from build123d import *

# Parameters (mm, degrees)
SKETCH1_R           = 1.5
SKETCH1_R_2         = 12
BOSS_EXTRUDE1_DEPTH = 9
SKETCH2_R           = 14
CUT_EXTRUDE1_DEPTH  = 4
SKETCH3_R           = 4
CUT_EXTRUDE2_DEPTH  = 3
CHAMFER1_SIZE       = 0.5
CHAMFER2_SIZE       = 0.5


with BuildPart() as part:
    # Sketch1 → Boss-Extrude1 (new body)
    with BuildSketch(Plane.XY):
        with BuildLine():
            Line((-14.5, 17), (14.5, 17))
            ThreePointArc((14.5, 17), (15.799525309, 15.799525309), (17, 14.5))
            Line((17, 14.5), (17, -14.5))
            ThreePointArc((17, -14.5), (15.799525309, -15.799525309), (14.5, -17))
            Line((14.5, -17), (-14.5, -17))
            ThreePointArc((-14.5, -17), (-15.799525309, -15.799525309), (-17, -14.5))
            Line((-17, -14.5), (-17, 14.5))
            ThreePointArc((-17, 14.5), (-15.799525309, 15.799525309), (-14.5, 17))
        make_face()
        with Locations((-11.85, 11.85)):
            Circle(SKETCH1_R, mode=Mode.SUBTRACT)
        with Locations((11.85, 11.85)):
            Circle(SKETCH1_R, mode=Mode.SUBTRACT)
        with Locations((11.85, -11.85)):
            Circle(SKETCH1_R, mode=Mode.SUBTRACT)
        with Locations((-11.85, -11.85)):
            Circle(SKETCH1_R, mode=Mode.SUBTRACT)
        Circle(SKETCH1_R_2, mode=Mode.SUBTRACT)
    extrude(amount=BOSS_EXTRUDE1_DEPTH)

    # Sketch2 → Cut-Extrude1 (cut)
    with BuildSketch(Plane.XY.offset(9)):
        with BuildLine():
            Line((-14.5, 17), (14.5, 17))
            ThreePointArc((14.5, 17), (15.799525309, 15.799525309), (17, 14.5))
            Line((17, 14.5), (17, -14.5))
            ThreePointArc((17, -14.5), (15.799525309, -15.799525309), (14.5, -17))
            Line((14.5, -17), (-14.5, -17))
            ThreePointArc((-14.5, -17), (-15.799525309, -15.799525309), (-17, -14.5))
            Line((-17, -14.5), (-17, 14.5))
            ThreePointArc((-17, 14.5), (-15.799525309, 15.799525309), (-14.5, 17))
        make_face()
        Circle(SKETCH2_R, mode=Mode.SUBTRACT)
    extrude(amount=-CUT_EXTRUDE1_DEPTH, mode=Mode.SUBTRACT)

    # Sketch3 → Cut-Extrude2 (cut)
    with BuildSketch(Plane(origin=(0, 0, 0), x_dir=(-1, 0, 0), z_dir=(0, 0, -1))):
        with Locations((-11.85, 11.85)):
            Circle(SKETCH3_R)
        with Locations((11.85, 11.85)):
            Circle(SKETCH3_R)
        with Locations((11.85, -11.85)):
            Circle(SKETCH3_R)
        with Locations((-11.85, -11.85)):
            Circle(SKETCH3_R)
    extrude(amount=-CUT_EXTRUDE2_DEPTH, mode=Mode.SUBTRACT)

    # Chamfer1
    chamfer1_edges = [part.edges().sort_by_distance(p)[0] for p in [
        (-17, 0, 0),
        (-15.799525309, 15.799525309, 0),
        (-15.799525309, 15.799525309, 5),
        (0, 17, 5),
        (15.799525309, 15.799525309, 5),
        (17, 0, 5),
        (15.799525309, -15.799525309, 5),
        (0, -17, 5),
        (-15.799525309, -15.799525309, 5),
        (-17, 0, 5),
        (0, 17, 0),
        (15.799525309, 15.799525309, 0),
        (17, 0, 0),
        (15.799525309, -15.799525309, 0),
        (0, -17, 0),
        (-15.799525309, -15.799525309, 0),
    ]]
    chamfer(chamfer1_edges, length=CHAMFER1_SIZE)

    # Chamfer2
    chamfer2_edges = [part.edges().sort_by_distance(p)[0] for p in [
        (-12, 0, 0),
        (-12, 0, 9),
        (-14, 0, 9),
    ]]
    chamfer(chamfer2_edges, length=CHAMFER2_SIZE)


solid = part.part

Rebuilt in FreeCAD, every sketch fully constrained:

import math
import FreeCAD as App
import Part
import Sketcher


def edges_at(feature, points):
    """Names of the edges that pass closest to the given points."""
    edges = feature.Shape.Edges
    near = lambda p: min(range(len(edges)), key=lambda i: edges[i].distToShape(Part.Vertex(*p))[0])
    return sorted({f"Edge{near(p) + 1}" for p in points})

doc = App.newDocument("Part")
body = doc.addObject("PartDesign::Body", "Body")

sketch1 = doc.addObject("Sketcher::SketchObject", "Sketch")
body.addObject(sketch1)
sketch1.AttachmentSupport = (doc.XY_Plane, [""])
sketch1.MapMode = "FlatFace"
sketch1.addGeometry([
    Part.LineSegment(App.Vector(14.5, 17, 0), App.Vector(-14.5, 17, 0)),
    Part.ArcOfCircle(Part.Circle(App.Vector(0, 0, 0), App.Vector(0, 0, 1), 22.343903), math.radians(130.462228), math.radians(139.537772)),
    Part.LineSegment(App.Vector(-17, 14.5, 0), App.Vector(-17, -14.5, 0)),
    Part.ArcOfCircle(Part.Circle(App.Vector(0, 0, 0), App.Vector(0, 0, 1), 22.343903), math.radians(-139.537772), math.radians(-130.462228)),
    Part.LineSegment(App.Vector(-14.5, -17, 0), App.Vector(14.5, -17, 0)),
    Part.ArcOfCircle(Part.Circle(App.Vector(0, 0, 0), App.Vector(0, 0, 1), 22.343903), math.radians(-49.537772), math.radians(-40.462228)),
    Part.LineSegment(App.Vector(17, -14.5, 0), App.Vector(17, 14.5, 0)),
    Part.ArcOfCircle(Part.Circle(App.Vector(0, 0, 0), App.Vector(0, 0, 1), 22.343903), math.radians(40.462228), math.radians(49.537772)),
    Part.Circle(App.Vector(11.85, -11.85, 0), App.Vector(0, 0, 1), 1.5),
    Part.Circle(App.Vector(-11.85, -11.85, 0), App.Vector(0, 0, 1), 1.5),
    Part.Circle(App.Vector(11.85, 11.85, 0), App.Vector(0, 0, 1), 1.5),
    Part.Circle(App.Vector(0, 0, 0), App.Vector(0, 0, 1), 12),
    Part.Circle(App.Vector(-11.85, 11.85, 0), App.Vector(0, 0, 1), 1.5),
], False)
sketch1.addConstraint([
    Sketcher.Constraint("Coincident", 0, 2, 1, 1),
    Sketcher.Constraint("Coincident", 1, 2, 2, 1),
    Sketcher.Constraint("Coincident", 2, 2, 3, 1),
    Sketcher.Constraint("Coincident", 3, 2, 4, 1),
    Sketcher.Constraint("Coincident", 4, 2, 5, 1),
    Sketcher.Constraint("Coincident", 5, 2, 6, 1),
    Sketcher.Constraint("Coincident", 6, 2, 7, 1),
    Sketcher.Constraint("Coincident", 7, 2, 0, 1),
    Sketcher.Constraint("Horizontal", 0),
    Sketcher.Constraint("Vertical", 2),
    Sketcher.Constraint("Horizontal", 4),
    Sketcher.Constraint("Vertical", 6),
    Sketcher.Constraint("Coincident", 1, 3, -1, 1),
    Sketcher.Constraint("Coincident", 3, 3, -1, 1),
    Sketcher.Constraint("Coincident", 5, 3, -1, 1),
    Sketcher.Constraint("Coincident", 7, 3, -1, 1),
    Sketcher.Constraint("Coincident", 11, 3, -1, 1),
    Sketcher.Constraint("Equal", 1, 3),
    Sketcher.Constraint("Equal", 3, 5),
    Sketcher.Constraint("Equal", 5, 7),
    Sketcher.Constraint("Equal", 8, 9),
    Sketcher.Constraint("Equal", 9, 10),
    Sketcher.Constraint("Equal", 10, 12),
    Sketcher.Constraint("Symmetric", 9, 3, 10, 3, -1, 1),
    Sketcher.Constraint("Symmetric", 8, 3, 12, 3, -1, 1),
    Sketcher.Constraint("Symmetric", 8, 3, 9, 3, -2),
    Sketcher.Constraint("Horizontal", 2, 2, 5, 2),
    Sketcher.Constraint("Vertical", 0, 2, 3, 2),
    Sketcher.Constraint("Equal", 4, 2),
    Sketcher.Constraint("Diameter", 8, 3.0),
    Sketcher.Constraint("Diameter", 11, 24.0),
    Sketcher.Constraint("DistanceX", 0, 2, 0, 1, 29.0),
    Sketcher.Constraint("DistanceY", -1, 1, 0, 2, 17.0),
    Sketcher.Constraint("DistanceX", 9, 3, 8, 3, 23.7),
    Sketcher.Constraint("DistanceY", 8, 3, 10, 3, 23.7),
])
pad1 = doc.addObject("PartDesign::Pad", "Pad")
body.addObject(pad1)
pad1.Profile = sketch1
pad1.Length = 9

sketch2 = doc.addObject("Sketcher::SketchObject", "Sketch001")
body.addObject(sketch2)
sketch2.AttachmentSupport = (doc.XY_Plane, [""])
sketch2.MapMode = "FlatFace"
sketch2.AttachmentOffset = App.Placement(App.Vector(0, 0, 9), App.Rotation())
sketch2.addGeometry([
    Part.LineSegment(App.Vector(14.5, 17, 0), App.Vector(-14.5, 17, 0)),
    Part.ArcOfCircle(Part.Circle(App.Vector(0, 0, 0), App.Vector(0, 0, 1), 22.343903), math.radians(130.462228), math.radians(139.537772)),
    Part.LineSegment(App.Vector(-17, 14.5, 0), App.Vector(-17, -14.5, 0)),
    Part.ArcOfCircle(Part.Circle(App.Vector(0, 0, 0), App.Vector(0, 0, 1), 22.343903), math.radians(-139.537772), math.radians(-130.462228)),
    Part.LineSegment(App.Vector(-14.5, -17, 0), App.Vector(14.5, -17, 0)),
    Part.ArcOfCircle(Part.Circle(App.Vector(0, 0, 0), App.Vector(0, 0, 1), 22.343903), math.radians(-49.537772), math.radians(-40.462228)),
    Part.LineSegment(App.Vector(17, -14.5, 0), App.Vector(17, 14.5, 0)),
    Part.ArcOfCircle(Part.Circle(App.Vector(0, 0, 0), App.Vector(0, 0, 1), 22.343903), math.radians(40.462228), math.radians(49.537772)),
    Part.Circle(App.Vector(0, 0, 0), App.Vector(0, 0, 1), 14),
], False)
sketch2.addConstraint([
    Sketcher.Constraint("Coincident", 0, 2, 1, 1),
    Sketcher.Constraint("Coincident", 1, 2, 2, 1),
    Sketcher.Constraint("Coincident", 2, 2, 3, 1),
    Sketcher.Constraint("Coincident", 3, 2, 4, 1),
    Sketcher.Constraint("Coincident", 4, 2, 5, 1),
    Sketcher.Constraint("Coincident", 5, 2, 6, 1),
    Sketcher.Constraint("Coincident", 6, 2, 7, 1),
    Sketcher.Constraint("Coincident", 7, 2, 0, 1),
    Sketcher.Constraint("Horizontal", 0),
    Sketcher.Constraint("Vertical", 2),
    Sketcher.Constraint("Horizontal", 4),
    Sketcher.Constraint("Vertical", 6),
    Sketcher.Constraint("Coincident", 1, 3, -1, 1),
    Sketcher.Constraint("Coincident", 3, 3, -1, 1),
    Sketcher.Constraint("Coincident", 5, 3, -1, 1),
    Sketcher.Constraint("Coincident", 7, 3, -1, 1),
    Sketcher.Constraint("Coincident", 8, 3, -1, 1),
    Sketcher.Constraint("Equal", 1, 3),
    Sketcher.Constraint("Equal", 3, 5),
    Sketcher.Constraint("Equal", 5, 7),
    Sketcher.Constraint("Horizontal", 2, 2, 5, 2),
    Sketcher.Constraint("Vertical", 0, 2, 3, 2),
    Sketcher.Constraint("Equal", 4, 2),
    Sketcher.Constraint("Diameter", 8, 28.0),
    Sketcher.Constraint("DistanceX", 0, 2, 0, 1, 29.0),
    Sketcher.Constraint("DistanceY", -1, 1, 0, 2, 17.0),
])
pocket1 = doc.addObject("PartDesign::Pocket", "Pocket")
body.addObject(pocket1)
pocket1.Profile = sketch2
pocket1.Length = 4

sketch3 = doc.addObject("Sketcher::SketchObject", "Sketch002")
body.addObject(sketch3)
sketch3.AttachmentSupport = (doc.XY_Plane, [""])
sketch3.MapMode = "FlatFace"
sketch3.addGeometry([
    Part.Circle(App.Vector(11.85, 11.85, 0), App.Vector(0, 0, 1), 4),
    Part.Circle(App.Vector(-11.85, 11.85, 0), App.Vector(0, 0, 1), 4),
    Part.Circle(App.Vector(-11.85, -11.85, 0), App.Vector(0, 0, 1), 4),
    Part.Circle(App.Vector(11.85, -11.85, 0), App.Vector(0, 0, 1), 4),
], False)
sketch3.addConstraint([
    Sketcher.Constraint("Equal", 0, 1),
    Sketcher.Constraint("Equal", 1, 2),
    Sketcher.Constraint("Equal", 2, 3),
    Sketcher.Constraint("Symmetric", 0, 3, 2, 3, -1, 1),
    Sketcher.Constraint("Symmetric", 1, 3, 3, 3, -1, 1),
    Sketcher.Constraint("Symmetric", 0, 3, 1, 3, -2),
    Sketcher.Constraint("Diameter", 0, 8.0),
    Sketcher.Constraint("DistanceX", 1, 3, 0, 3, 23.7),
    Sketcher.Constraint("DistanceY", 2, 3, 1, 3, 23.7),
])
pocket2 = doc.addObject("PartDesign::Pocket", "Pocket001")
body.addObject(pocket2)
pocket2.Profile = sketch3
pocket2.Length = 3
pocket2.Reversed = True
doc.recompute()

chamfer = doc.addObject("PartDesign::Chamfer", "Chamfer")
body.addObject(chamfer)
chamfer.Base = (pocket2, edges_at(pocket2, [
    (-17, 0, 0),
    (-15.8, 15.8, 0),
    (-15.8, 15.8, 5),
    (0, 17, 5),
    (15.8, 15.8, 5),
    (17, 0, 5),
    (15.8, -15.8, 5),
    (0, -17, 5),
    (-15.8, -15.8, 5),
    (-17, 0, 5),
    (0, 17, 0),
    (15.8, 15.8, 0),
    (17, 0, 0),
    (15.8, -15.8, 0),
    (0, -17, 0),
    (-15.8, -15.8, 0),
]))
chamfer.Size = 0.5
doc.recompute()

chamfer2 = doc.addObject("PartDesign::Chamfer", "Chamfer001")
body.addObject(chamfer2)
chamfer2.Base = (chamfer, edges_at(chamfer, [(-12, 0, 0), (-12, 0, 9), (-14, 0, 9)]))
chamfer2.Size = 0.5

doc.recompute()
